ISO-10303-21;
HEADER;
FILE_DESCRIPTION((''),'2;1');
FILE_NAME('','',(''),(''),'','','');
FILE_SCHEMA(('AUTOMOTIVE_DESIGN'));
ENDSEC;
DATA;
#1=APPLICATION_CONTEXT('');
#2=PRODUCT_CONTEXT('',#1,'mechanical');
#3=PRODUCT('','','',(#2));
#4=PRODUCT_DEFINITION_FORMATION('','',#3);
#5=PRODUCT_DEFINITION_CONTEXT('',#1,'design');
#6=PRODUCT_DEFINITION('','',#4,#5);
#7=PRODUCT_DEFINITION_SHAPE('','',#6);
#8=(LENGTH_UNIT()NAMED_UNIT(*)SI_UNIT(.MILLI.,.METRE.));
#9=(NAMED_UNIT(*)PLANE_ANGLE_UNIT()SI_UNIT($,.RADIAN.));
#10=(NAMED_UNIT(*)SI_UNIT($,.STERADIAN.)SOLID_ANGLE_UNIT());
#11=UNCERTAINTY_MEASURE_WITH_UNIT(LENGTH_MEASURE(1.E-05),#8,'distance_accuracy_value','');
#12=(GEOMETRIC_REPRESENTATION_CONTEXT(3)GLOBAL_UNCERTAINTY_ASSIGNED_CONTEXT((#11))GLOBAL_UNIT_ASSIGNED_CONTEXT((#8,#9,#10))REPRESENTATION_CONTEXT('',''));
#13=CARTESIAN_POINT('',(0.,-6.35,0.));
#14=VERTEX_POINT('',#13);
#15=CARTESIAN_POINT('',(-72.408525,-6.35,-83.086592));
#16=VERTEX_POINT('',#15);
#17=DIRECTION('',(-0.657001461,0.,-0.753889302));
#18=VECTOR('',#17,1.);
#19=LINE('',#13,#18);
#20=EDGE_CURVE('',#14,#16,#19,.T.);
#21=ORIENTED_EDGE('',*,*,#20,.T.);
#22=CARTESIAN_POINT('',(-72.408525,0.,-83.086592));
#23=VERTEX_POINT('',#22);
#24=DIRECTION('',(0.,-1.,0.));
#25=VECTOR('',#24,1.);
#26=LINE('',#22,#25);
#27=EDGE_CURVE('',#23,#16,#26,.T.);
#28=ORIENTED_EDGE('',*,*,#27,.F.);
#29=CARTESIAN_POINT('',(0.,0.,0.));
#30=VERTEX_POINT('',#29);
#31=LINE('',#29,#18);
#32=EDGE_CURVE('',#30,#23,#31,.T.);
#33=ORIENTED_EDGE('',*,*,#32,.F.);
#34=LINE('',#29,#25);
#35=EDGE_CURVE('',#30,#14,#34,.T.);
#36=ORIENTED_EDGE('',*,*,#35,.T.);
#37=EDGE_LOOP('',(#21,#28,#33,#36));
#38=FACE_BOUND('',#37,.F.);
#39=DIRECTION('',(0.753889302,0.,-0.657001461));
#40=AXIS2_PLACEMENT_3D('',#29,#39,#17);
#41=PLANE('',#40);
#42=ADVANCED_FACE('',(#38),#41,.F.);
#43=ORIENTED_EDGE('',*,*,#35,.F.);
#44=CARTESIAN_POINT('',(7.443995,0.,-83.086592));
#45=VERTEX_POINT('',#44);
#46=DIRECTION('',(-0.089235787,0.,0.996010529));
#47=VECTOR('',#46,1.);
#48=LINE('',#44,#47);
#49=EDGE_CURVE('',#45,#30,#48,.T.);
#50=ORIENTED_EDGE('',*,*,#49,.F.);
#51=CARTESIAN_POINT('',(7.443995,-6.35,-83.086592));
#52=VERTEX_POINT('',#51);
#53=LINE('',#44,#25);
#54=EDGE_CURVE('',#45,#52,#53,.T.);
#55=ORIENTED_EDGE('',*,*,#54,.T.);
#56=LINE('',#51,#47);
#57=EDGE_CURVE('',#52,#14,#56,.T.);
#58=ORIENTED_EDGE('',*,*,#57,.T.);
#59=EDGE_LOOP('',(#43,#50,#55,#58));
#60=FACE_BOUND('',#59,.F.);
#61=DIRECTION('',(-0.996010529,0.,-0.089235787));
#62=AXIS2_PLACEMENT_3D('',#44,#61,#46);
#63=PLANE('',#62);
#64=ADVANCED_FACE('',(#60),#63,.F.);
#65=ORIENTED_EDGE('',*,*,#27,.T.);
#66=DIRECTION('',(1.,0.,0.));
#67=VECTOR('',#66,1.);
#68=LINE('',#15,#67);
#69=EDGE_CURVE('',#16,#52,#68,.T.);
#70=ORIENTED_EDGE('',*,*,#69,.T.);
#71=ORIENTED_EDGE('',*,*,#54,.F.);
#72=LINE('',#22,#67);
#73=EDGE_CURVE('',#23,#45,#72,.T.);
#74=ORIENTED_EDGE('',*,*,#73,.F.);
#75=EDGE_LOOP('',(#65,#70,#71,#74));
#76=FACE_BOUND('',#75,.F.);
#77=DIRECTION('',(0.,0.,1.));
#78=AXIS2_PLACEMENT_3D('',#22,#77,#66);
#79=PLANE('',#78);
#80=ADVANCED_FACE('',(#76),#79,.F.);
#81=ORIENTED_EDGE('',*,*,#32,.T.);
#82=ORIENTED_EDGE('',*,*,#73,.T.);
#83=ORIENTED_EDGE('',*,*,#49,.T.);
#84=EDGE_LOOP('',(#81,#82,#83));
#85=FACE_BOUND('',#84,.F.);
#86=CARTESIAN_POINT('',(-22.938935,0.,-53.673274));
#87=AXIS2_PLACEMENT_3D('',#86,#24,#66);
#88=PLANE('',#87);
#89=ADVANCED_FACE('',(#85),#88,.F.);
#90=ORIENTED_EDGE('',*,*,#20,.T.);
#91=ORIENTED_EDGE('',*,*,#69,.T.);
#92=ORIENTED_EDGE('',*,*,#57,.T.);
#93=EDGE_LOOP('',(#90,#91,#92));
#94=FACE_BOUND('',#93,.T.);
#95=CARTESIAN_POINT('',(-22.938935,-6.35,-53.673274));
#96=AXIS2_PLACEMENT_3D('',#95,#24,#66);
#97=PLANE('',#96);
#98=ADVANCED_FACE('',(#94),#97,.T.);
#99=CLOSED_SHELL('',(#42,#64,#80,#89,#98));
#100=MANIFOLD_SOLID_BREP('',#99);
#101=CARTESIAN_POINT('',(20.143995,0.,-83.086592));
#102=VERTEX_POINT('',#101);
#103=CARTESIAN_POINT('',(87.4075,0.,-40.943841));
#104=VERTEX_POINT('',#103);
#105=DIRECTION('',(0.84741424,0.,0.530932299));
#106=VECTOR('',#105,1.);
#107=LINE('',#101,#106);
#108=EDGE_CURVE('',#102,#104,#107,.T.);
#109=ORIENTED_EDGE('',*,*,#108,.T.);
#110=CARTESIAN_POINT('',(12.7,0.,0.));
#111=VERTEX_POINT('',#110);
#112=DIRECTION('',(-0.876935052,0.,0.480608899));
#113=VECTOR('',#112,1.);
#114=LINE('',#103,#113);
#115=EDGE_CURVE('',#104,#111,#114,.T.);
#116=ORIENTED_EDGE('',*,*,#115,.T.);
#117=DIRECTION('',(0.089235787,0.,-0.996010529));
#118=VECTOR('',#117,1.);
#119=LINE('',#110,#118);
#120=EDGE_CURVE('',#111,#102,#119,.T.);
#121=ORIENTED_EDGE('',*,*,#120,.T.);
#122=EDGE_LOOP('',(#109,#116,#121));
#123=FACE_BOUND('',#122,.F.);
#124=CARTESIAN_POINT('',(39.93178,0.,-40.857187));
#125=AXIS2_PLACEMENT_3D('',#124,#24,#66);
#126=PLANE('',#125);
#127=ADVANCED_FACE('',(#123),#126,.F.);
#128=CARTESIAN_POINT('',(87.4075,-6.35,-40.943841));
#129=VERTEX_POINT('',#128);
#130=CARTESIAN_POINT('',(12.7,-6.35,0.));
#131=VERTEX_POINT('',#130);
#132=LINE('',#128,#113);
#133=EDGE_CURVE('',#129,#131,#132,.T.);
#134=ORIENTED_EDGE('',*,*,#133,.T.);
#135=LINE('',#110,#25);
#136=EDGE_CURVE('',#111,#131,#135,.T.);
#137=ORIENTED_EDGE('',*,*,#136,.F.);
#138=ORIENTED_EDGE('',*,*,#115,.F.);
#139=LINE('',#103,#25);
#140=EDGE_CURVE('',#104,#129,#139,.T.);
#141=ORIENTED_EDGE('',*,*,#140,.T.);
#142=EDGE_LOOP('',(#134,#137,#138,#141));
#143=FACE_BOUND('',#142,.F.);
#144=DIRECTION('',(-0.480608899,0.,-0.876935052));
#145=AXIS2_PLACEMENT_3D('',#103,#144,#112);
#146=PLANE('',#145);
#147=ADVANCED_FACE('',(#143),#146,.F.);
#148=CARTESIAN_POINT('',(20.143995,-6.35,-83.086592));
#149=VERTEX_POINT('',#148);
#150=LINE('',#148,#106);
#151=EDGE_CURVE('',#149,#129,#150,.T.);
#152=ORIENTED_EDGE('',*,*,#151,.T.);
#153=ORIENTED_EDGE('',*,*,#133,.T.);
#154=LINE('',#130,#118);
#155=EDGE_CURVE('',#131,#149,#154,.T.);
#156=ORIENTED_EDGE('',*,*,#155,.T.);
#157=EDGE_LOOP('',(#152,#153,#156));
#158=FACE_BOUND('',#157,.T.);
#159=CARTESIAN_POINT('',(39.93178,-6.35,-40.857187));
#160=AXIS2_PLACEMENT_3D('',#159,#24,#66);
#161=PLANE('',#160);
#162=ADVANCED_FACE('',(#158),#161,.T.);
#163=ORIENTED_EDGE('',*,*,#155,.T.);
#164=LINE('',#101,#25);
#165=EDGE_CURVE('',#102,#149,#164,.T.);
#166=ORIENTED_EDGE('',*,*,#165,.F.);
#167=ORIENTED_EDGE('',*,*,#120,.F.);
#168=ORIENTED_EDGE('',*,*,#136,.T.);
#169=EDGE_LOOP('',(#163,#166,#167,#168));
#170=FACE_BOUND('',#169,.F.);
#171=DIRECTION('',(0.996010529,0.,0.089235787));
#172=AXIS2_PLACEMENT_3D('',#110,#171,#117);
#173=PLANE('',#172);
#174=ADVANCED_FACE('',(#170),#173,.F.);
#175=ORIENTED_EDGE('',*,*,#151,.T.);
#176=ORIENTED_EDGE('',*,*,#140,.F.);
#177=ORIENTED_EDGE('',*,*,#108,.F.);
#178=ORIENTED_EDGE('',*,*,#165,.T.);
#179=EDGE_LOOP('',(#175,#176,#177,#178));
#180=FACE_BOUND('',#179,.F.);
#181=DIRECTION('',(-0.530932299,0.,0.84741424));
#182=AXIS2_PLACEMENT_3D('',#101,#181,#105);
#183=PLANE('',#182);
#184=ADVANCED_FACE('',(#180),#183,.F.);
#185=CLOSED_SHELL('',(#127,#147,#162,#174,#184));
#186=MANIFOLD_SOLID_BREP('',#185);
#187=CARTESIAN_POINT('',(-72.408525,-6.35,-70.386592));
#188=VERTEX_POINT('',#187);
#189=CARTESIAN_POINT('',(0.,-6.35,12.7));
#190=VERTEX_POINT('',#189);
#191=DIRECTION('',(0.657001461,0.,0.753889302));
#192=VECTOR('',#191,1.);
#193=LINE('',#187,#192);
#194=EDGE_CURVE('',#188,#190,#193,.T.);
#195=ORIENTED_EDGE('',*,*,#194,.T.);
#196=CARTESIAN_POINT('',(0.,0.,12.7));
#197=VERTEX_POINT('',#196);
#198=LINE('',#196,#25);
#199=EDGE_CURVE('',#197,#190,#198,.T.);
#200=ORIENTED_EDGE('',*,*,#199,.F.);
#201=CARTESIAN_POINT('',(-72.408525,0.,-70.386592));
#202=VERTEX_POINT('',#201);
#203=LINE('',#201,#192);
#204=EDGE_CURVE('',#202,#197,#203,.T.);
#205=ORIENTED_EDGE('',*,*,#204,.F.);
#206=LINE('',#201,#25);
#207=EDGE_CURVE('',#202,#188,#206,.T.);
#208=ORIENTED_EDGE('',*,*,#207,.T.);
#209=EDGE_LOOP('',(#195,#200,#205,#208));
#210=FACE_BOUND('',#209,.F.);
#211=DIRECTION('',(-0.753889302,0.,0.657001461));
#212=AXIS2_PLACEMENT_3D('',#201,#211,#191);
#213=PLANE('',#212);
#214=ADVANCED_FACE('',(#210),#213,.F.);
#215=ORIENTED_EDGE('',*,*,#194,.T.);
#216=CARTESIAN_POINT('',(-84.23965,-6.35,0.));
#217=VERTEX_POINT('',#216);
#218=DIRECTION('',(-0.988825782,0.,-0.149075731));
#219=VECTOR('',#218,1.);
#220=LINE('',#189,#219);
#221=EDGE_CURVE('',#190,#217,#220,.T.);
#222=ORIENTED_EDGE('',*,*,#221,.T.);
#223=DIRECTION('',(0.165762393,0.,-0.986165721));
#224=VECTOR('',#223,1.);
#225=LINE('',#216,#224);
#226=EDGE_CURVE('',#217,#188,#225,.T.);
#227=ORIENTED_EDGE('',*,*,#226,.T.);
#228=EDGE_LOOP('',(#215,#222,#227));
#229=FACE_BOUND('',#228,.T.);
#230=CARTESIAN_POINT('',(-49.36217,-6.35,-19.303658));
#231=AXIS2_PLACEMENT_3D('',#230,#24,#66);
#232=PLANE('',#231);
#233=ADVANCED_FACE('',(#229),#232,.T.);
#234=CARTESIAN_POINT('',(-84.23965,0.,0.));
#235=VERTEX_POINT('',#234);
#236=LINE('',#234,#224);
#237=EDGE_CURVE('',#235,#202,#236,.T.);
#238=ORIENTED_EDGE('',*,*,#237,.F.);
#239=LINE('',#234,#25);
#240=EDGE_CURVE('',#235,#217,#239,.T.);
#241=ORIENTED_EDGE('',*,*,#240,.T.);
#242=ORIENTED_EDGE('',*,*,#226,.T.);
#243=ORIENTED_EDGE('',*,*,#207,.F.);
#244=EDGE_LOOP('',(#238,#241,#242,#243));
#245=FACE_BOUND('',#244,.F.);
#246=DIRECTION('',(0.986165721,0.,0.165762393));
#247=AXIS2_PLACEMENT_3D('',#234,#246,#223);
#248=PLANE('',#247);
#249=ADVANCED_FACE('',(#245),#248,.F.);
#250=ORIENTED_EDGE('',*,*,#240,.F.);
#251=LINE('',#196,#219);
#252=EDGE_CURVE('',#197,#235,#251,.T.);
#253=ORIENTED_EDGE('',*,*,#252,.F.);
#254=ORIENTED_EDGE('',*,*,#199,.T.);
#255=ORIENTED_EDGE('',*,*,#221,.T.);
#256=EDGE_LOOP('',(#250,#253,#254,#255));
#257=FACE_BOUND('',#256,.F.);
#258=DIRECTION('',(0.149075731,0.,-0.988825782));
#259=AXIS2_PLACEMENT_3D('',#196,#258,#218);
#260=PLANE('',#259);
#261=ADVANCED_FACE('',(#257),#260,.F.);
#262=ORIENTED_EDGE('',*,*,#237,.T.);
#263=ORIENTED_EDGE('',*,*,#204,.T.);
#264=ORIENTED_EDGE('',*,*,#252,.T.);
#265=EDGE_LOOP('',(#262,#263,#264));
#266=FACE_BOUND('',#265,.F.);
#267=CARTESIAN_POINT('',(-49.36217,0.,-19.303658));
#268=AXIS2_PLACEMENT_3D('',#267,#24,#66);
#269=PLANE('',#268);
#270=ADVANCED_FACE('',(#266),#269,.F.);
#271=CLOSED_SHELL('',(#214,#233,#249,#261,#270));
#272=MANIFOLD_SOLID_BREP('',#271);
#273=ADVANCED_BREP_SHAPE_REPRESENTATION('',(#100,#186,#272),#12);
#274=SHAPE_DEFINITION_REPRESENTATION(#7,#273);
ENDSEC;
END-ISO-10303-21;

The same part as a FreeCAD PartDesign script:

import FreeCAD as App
import Part
import Sketcher
Q = App.Units.Quantity

doc = App.newDocument("Part")
body = doc.addObject("PartDesign::Body", "Body")
body.AllowCompound = True

sketch1 = body.newObject("Sketcher::SketchObject", "Sketch")
sketch1.AttachmentSupport = (doc.getObject("XZ_Plane"), [""])
sketch1.MapMode = "FlatFace"
sketch1.addGeometry(Part.LineSegment(App.Vector(-72, -70, 0), App.Vector(0, 13, 0)), False)
sketch1.addGeometry(Part.LineSegment(App.Vector(0, 13, 0), App.Vector(-84, 0, 0)), False)
sketch1.addGeometry(Part.LineSegment(App.Vector(-84, 0, 0), App.Vector(-72, -70, 0)), False)
sketch1.addGeometry(Part.LineSegment(App.Vector(-72, -83, 0), App.Vector(7, -83, 0)), False)
sketch1.addGeometry(Part.LineSegment(App.Vector(7, -83, 0), App.Vector(0, 0, 0)), False)
sketch1.addGeometry(Part.LineSegment(App.Vector(0, 0, 0), App.Vector(-72, -83, 0)), False)
sketch1.addGeometry(Part.LineSegment(App.Vector(20, -83, 0), App.Vector(87, -41, 0)), False)
sketch1.addGeometry(Part.LineSegment(App.Vector(87, -41, 0), App.Vector(13, 0, 0)), False)
sketch1.addGeometry(Part.LineSegment(App.Vector(13, 0, 0), App.Vector(20, -83, 0)), False)
sketch1.addConstraint(Sketcher.Constraint("Coincident", 0, 2, 1, 1))
sketch1.addConstraint(Sketcher.Constraint("Coincident", 1, 2, 2, 1))
sketch1.addConstraint(Sketcher.Constraint("Coincident", 2, 2, 0, 1))
sketch1.addConstraint(Sketcher.Constraint("Coincident", 3, 2, 4, 1))
sketch1.addConstraint(Sketcher.Constraint("Coincident", 4, 2, 5, 1))
sketch1.addConstraint(Sketcher.Constraint("Coincident", 5, 2, 3, 1))
sketch1.addConstraint(Sketcher.Constraint("Coincident", 6, 2, 7, 1))
sketch1.addConstraint(Sketcher.Constraint("Coincident", 7, 2, 8, 1))
sketch1.addConstraint(Sketcher.Constraint("Coincident", 8, 2, 6, 1))
sketch1.addConstraint(Sketcher.Constraint("Horizontal", 3))
sketch1.addConstraint(Sketcher.Constraint("Coincident", 4, 2, -1, 1))
sketch1.addConstraint(Sketcher.Constraint("PointOnObject", 0, 2, -2))
sketch1.addConstraint(Sketcher.Constraint("PointOnObject", 1, 2, -1))
sketch1.addConstraint(Sketcher.Constraint("PointOnObject", 7, 2, -1))
sketch1.addConstraint(Sketcher.Constraint("Parallel", 0, 5))
sketch1.addConstraint(Sketcher.Constraint("Parallel", 4, 8))
sketch1.addConstraint(Sketcher.Constraint("Horizontal", 5, 2, 8, 2))
sketch1.addConstraint(Sketcher.Constraint("Vertical", 2, 2, 5, 2))
sketch1.addConstraint(Sketcher.Constraint("Equal", 1, 7))
sketch1.addConstraint(Sketcher.Constraint("DistanceY", -1, 1, 0, 2, Q("0.5 in")))
sketch1.addConstraint(Sketcher.Constraint("DistanceX", -1, 1, 7, 2, Q("0.5 in")))
sketch1.addConstraint(Sketcher.Constraint("Distance", 2, Q("2.81 in")))
sketch1.addConstraint(Sketcher.Constraint("Distance", 0, Q("4.339 in")))
sketch1.addConstraint(Sketcher.Constraint("Distance", 1, Q("3.354 in")))
sketch1.addConstraint(Sketcher.Constraint("Distance", 6, Q("3.125 in")))
sketch1.addConstraint(Sketcher.Constraint("DistanceX", 3, 1, 3, 2, Q("3.1438 in")))
pad1 = body.newObject("PartDesign::Pad", "Pad")
pad1.Profile = sketch1
pad1.Length = Q("0.25 in")

doc.recompute()
